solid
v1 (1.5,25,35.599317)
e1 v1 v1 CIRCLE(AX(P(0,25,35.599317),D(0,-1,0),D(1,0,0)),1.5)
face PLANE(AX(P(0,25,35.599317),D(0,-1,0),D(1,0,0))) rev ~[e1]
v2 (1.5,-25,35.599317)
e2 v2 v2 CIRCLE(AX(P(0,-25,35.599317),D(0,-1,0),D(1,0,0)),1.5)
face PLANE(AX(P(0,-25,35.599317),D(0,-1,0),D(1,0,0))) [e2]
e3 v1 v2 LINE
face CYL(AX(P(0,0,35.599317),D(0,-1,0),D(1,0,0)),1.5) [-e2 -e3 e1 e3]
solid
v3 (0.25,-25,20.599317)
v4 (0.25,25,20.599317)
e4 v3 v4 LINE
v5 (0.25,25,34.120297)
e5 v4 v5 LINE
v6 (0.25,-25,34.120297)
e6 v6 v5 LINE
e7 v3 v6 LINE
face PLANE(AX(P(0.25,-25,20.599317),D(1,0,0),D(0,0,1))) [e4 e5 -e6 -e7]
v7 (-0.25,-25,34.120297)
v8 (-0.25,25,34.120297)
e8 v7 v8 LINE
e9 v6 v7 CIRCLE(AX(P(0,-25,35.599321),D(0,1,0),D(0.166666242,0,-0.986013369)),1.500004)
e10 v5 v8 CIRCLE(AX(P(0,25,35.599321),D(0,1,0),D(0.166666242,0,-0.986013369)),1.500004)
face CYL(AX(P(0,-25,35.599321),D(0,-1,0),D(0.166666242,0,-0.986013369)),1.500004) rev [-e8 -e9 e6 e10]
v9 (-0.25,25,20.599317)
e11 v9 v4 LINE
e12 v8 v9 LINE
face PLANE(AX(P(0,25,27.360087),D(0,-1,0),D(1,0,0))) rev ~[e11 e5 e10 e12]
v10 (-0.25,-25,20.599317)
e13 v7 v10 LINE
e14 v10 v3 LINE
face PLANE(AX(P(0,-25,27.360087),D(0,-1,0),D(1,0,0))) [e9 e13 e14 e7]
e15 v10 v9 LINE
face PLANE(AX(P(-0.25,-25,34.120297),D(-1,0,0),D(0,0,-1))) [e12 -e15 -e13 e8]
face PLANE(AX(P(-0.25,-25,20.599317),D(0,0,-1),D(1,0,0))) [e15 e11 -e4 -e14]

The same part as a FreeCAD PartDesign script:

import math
import FreeCAD as App
import Part
import Sketcher

V = App.Vector

doc = App.newDocument("Part")
params = doc.addObject("Spreadsheet::Sheet", "Params")
for row, (alias, value) in enumerate([
    ("sketch1_diameter", "3 mm"),
    ("pad1_length", "50 mm"),
    ("sketch2_width", "0.5 mm"),
    ("pad2_length", "50 mm"),
], start=1):
    params.set(f"A{row}", alias)
    params.set(f"B{row}", "=" + value)
    params.setAlias(f"B{row}", alias)

body = doc.addObject("PartDesign::Body", "Body")

# Sketch on XZ plane
sketch1 = doc.addObject("Sketcher::SketchObject", "Sketch")
body.addObject(sketch1)
sketch1.AttachmentSupport = (doc.XZ_Plane, [""])
sketch1.MapMode = "FlatFace"
sketch1.addGeometry(Part.Circle(V(0, 35.6, 0), V(0, 0, 1), 1.5), False)
sketch1.addConstraint([
    Sketcher.Constraint("PointOnObject", 0, 3, -2),
    Sketcher.Constraint("Diameter", 0, 3.0),
    Sketcher.Constraint("DistanceY", -1, 1, 0, 3, 35.599317),
])
sketch1.setExpression("Constraints[1]", "Params.sketch1_diameter")
pad1 = doc.addObject("PartDesign::Pad", "Pad")
body.addObject(pad1)
pad1.Profile = sketch1
pad1.setExpression("Length", "Params.pad1_length")
pad1.Midplane = True
body2 = doc.addObject("PartDesign::Body", "Body001")

# Sketch on XZ plane
sketch2 = doc.addObject("Sketcher::SketchObject", "Sketch001")
body2.addObject(sketch2)
sketch2.AttachmentSupport = (doc.getObject("XZ_Plane001"), [""])
sketch2.MapMode = "FlatFace"
sketch2.AttachmentOffset = App.Placement(V(0, 0, 25), App.Rotation())
sketch2.addGeometry([
    Part.LineSegment(V(0.2, 20.6, 0), V(0.2, 34.1, 0)),
    Part.ArcOfCircle(Part.Circle(V(0, 35.6, 0), V(0, 0, 1), 1.5), math.radians(-99.59), math.radians(-80.41)),
    Part.LineSegment(V(-0.2, 34.1, 0), V(-0.2, 20.6, 0)),
    Part.LineSegment(V(-0.2, 20.6, 0), V(0.2, 20.6, 0)),
], False)
sketch2.addConstraint([
    Sketcher.Constraint("Coincident", 0, 2, 1, 2),
    Sketcher.Constraint("Coincident", 1, 1, 2, 1),
    Sketcher.Constraint("Coincident", 2, 2, 3, 1),
    Sketcher.Constraint("Coincident", 3, 2, 0, 1),
    Sketcher.Constraint("Vertical", 0),
    Sketcher.Constraint("Vertical", 2),
    Sketcher.Constraint("Horizontal", 3),
    Sketcher.Constraint("Symmetric", 0, 2, 1, 1, -2),
    Sketcher.Constraint("DistanceX", 3, 1, 3, 2, 0.5),
    Sketcher.Constraint("Radius", 1, 1.500004),
    Sketcher.Constraint("DistanceY", 0, 1, 0, 2, 13.52098),
    Sketcher.Constraint("DistanceY", -1, 1, 1, 3, 35.599321),
])
sketch2.setExpression("Constraints[8]", "Params.sketch2_width")
pad2 = doc.addObject("PartDesign::Pad", "Pad001")
body2.addObject(pad2)
pad2.Profile = sketch2
pad2.setExpression("Length", "Params.pad2_length")
pad2.Reversed = True

doc.recompute()
